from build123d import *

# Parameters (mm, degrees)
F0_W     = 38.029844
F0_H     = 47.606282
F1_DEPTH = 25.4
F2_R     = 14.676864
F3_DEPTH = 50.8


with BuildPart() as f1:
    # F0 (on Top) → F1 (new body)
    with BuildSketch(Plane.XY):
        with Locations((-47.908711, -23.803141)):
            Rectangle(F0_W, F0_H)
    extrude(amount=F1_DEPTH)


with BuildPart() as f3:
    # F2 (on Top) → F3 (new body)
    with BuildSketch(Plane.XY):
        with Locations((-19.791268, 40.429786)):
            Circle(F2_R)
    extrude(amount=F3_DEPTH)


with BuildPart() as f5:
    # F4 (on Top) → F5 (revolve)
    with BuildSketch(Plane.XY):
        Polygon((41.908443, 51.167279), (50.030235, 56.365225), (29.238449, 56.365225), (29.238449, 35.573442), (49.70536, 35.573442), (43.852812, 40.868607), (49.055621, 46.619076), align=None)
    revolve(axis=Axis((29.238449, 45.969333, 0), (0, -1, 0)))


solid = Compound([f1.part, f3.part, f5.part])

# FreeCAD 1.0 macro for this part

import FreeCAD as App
import Part
import Sketcher
Q = App.Units.Quantity


def add_polygon(sketch, points):
    """Adds a closed chain of lines whose ends are joined by coincident constraints."""
    first, n = sketch.GeometryCount, len(points)
    for a, b in zip(points, points[1:] + points[:1]):
        sketch.addGeometry(Part.LineSegment(App.Vector(*a, 0), App.Vector(*b, 0)), False)
    for i in range(n):
        sketch.addConstraint(Sketcher.Constraint("Coincident", first + i, 2, first + (i + 1) % n, 1))

doc = App.newDocument("Part")
body = doc.addObject("PartDesign::Body", "Body")

# Sketch on XY plane
sketch1 = doc.addObject("Sketcher::SketchObject", "Sketch")
body.addObject(sketch1)
sketch1.AttachmentSupport = (doc.XY_Plane, [""])
sketch1.MapMode = "FlatFace"
add_polygon(sketch1, [(-66.923633, 0), (-66.923633, -47.606282), (-28.893789, -47.606282), (-28.893789, 0)])  # lines 0-3
sketch1.addConstraint(Sketcher.Constraint("Vertical", 0))
sketch1.addConstraint(Sketcher.Constraint("Horizontal", 1))
sketch1.addConstraint(Sketcher.Constraint("Vertical", 2))
sketch1.addConstraint(Sketcher.Constraint("Horizontal", 3))
sketch1.addConstraint(Sketcher.Constraint("PointOnObject", 2, 2, -1))
sketch1.addConstraint(Sketcher.Constraint("DistanceX", 1, 1, 1, 2, Q("38.029844 mm")))
sketch1.addConstraint(Sketcher.Constraint("DistanceY", 0, 2, 0, 1, Q("47.606282 mm")))
sketch1.addConstraint(Sketcher.Constraint("DistanceX", 1, 2, -1, 1, Q("28.893789 mm")))
pad1 = doc.addObject("PartDesign::Pad", "Pad")
body.addObject(pad1)
pad1.Profile = sketch1
pad1.Length = Q("1 in")
body2 = doc.addObject("PartDesign::Body", "Body001")

# Sketch on XY plane
sketch2 = doc.addObject("Sketcher::SketchObject", "Sketch001")
body2.addObject(sketch2)
sketch2.AttachmentSupport = (doc.getObject("XY_Plane001"), [""])
sketch2.MapMode = "FlatFace"
sketch2.addGeometry(Part.Circle(App.Vector(-19.791268, 40.429786, 0), App.Vector(0, 0, 1), 14.676864), False)
sketch2.addConstraint(Sketcher.Constraint("Diameter", 0, Q("29.353728 mm")))
sketch2.addConstraint(Sketcher.Constraint("DistanceX", 0, 3, -1, 1, Q("19.791268 mm")))
sketch2.addConstraint(Sketcher.Constraint("DistanceY", -1, 1, 0, 3, Q("40.429786 mm")))
pad2 = doc.addObject("PartDesign::Pad", "Pad001")
body2.addObject(pad2)
pad2.Profile = sketch2
pad2.Length = Q("2 in")
body3 = doc.addObject("PartDesign::Body", "Body002")

# Sketch on XY plane
sketch3 = doc.addObject("Sketcher::SketchObject", "Sketch002")
body3.addObject(sketch3)
sketch3.AttachmentSupport = (doc.getObject("XY_Plane002"), [""])
sketch3.MapMode = "FlatFace"
add_polygon(sketch3, [(41.908443, 51.167279), (50.030235, 56.365225), (29.238449, 56.365225), (29.238449, 35.573442), (49.70536, 35.573442), (43.852812, 40.868607), (49.055621, 46.619076)])  # lines 0-6
sketch3.addGeometry(Part.LineSegment(App.Vector(29.238449, 56.365225, 0), App.Vector(29.238449, 35.573442, 0)), True)  # axis
sketch3.addConstraint(Sketcher.Constraint("Horizontal", 1))
sketch3.addConstraint(Sketcher.Constraint("Vertical", 2))
sketch3.addConstraint(Sketcher.Constraint("Horizontal", 3))
sketch3.addConstraint(Sketcher.Constraint("Vertical", 7))
sketch3.addConstraint(Sketcher.Constraint("Coincident", 7, 1, 1, 2))
sketch3.addConstraint(Sketcher.Constraint("Perpendicular", 4, 5))
sketch3.addConstraint(Sketcher.Constraint("Horizontal", 3, 2, 7, 2))
sketch3.addConstraint(Sketcher.Constraint("DistanceX", 3, 1, 3, 2, Q("20.466911 mm")))
sketch3.addConstraint(Sketcher.Constraint("Distance", 4, Q("7.89247 mm")))
sketch3.addConstraint(Sketcher.Constraint("DistanceX", 1, 2, 1, 1, Q("20.791786 mm")))
sketch3.addConstraint(Sketcher.Constraint("DistanceY", 2, 2, 2, 1, Q("20.791783 mm")))
sketch3.addConstraint(Sketcher.Constraint("DistanceX", -1, 1, 1, 2, Q("29.238449 mm")))
sketch3.addConstraint(Sketcher.Constraint("DistanceX", -1, 1, 5, 2, Q("49.055621 mm")))
sketch3.addConstraint(Sketcher.Constraint("DistanceY", -1, 1, 6, 2, Q("51.167279 mm")))
sketch3.addConstraint(Sketcher.Constraint("DistanceY", 4, 2, 0, 2, Q("15.496618 mm")))
sketch3.addConstraint(Sketcher.Constraint("DistanceX", 6, 2, 5, 2, Q("7.147178 mm")))
sketch3.addConstraint(Sketcher.Constraint("Distance", 0, Q("9.642725 mm")))
revolution = doc.addObject("PartDesign::Revolution", "Revolution")
body3.addObject(revolution)
revolution.Profile = sketch3
revolution.ReferenceAxis = (sketch3, ["Axis0"])
revolution.Angle = 360

doc.recompute()
